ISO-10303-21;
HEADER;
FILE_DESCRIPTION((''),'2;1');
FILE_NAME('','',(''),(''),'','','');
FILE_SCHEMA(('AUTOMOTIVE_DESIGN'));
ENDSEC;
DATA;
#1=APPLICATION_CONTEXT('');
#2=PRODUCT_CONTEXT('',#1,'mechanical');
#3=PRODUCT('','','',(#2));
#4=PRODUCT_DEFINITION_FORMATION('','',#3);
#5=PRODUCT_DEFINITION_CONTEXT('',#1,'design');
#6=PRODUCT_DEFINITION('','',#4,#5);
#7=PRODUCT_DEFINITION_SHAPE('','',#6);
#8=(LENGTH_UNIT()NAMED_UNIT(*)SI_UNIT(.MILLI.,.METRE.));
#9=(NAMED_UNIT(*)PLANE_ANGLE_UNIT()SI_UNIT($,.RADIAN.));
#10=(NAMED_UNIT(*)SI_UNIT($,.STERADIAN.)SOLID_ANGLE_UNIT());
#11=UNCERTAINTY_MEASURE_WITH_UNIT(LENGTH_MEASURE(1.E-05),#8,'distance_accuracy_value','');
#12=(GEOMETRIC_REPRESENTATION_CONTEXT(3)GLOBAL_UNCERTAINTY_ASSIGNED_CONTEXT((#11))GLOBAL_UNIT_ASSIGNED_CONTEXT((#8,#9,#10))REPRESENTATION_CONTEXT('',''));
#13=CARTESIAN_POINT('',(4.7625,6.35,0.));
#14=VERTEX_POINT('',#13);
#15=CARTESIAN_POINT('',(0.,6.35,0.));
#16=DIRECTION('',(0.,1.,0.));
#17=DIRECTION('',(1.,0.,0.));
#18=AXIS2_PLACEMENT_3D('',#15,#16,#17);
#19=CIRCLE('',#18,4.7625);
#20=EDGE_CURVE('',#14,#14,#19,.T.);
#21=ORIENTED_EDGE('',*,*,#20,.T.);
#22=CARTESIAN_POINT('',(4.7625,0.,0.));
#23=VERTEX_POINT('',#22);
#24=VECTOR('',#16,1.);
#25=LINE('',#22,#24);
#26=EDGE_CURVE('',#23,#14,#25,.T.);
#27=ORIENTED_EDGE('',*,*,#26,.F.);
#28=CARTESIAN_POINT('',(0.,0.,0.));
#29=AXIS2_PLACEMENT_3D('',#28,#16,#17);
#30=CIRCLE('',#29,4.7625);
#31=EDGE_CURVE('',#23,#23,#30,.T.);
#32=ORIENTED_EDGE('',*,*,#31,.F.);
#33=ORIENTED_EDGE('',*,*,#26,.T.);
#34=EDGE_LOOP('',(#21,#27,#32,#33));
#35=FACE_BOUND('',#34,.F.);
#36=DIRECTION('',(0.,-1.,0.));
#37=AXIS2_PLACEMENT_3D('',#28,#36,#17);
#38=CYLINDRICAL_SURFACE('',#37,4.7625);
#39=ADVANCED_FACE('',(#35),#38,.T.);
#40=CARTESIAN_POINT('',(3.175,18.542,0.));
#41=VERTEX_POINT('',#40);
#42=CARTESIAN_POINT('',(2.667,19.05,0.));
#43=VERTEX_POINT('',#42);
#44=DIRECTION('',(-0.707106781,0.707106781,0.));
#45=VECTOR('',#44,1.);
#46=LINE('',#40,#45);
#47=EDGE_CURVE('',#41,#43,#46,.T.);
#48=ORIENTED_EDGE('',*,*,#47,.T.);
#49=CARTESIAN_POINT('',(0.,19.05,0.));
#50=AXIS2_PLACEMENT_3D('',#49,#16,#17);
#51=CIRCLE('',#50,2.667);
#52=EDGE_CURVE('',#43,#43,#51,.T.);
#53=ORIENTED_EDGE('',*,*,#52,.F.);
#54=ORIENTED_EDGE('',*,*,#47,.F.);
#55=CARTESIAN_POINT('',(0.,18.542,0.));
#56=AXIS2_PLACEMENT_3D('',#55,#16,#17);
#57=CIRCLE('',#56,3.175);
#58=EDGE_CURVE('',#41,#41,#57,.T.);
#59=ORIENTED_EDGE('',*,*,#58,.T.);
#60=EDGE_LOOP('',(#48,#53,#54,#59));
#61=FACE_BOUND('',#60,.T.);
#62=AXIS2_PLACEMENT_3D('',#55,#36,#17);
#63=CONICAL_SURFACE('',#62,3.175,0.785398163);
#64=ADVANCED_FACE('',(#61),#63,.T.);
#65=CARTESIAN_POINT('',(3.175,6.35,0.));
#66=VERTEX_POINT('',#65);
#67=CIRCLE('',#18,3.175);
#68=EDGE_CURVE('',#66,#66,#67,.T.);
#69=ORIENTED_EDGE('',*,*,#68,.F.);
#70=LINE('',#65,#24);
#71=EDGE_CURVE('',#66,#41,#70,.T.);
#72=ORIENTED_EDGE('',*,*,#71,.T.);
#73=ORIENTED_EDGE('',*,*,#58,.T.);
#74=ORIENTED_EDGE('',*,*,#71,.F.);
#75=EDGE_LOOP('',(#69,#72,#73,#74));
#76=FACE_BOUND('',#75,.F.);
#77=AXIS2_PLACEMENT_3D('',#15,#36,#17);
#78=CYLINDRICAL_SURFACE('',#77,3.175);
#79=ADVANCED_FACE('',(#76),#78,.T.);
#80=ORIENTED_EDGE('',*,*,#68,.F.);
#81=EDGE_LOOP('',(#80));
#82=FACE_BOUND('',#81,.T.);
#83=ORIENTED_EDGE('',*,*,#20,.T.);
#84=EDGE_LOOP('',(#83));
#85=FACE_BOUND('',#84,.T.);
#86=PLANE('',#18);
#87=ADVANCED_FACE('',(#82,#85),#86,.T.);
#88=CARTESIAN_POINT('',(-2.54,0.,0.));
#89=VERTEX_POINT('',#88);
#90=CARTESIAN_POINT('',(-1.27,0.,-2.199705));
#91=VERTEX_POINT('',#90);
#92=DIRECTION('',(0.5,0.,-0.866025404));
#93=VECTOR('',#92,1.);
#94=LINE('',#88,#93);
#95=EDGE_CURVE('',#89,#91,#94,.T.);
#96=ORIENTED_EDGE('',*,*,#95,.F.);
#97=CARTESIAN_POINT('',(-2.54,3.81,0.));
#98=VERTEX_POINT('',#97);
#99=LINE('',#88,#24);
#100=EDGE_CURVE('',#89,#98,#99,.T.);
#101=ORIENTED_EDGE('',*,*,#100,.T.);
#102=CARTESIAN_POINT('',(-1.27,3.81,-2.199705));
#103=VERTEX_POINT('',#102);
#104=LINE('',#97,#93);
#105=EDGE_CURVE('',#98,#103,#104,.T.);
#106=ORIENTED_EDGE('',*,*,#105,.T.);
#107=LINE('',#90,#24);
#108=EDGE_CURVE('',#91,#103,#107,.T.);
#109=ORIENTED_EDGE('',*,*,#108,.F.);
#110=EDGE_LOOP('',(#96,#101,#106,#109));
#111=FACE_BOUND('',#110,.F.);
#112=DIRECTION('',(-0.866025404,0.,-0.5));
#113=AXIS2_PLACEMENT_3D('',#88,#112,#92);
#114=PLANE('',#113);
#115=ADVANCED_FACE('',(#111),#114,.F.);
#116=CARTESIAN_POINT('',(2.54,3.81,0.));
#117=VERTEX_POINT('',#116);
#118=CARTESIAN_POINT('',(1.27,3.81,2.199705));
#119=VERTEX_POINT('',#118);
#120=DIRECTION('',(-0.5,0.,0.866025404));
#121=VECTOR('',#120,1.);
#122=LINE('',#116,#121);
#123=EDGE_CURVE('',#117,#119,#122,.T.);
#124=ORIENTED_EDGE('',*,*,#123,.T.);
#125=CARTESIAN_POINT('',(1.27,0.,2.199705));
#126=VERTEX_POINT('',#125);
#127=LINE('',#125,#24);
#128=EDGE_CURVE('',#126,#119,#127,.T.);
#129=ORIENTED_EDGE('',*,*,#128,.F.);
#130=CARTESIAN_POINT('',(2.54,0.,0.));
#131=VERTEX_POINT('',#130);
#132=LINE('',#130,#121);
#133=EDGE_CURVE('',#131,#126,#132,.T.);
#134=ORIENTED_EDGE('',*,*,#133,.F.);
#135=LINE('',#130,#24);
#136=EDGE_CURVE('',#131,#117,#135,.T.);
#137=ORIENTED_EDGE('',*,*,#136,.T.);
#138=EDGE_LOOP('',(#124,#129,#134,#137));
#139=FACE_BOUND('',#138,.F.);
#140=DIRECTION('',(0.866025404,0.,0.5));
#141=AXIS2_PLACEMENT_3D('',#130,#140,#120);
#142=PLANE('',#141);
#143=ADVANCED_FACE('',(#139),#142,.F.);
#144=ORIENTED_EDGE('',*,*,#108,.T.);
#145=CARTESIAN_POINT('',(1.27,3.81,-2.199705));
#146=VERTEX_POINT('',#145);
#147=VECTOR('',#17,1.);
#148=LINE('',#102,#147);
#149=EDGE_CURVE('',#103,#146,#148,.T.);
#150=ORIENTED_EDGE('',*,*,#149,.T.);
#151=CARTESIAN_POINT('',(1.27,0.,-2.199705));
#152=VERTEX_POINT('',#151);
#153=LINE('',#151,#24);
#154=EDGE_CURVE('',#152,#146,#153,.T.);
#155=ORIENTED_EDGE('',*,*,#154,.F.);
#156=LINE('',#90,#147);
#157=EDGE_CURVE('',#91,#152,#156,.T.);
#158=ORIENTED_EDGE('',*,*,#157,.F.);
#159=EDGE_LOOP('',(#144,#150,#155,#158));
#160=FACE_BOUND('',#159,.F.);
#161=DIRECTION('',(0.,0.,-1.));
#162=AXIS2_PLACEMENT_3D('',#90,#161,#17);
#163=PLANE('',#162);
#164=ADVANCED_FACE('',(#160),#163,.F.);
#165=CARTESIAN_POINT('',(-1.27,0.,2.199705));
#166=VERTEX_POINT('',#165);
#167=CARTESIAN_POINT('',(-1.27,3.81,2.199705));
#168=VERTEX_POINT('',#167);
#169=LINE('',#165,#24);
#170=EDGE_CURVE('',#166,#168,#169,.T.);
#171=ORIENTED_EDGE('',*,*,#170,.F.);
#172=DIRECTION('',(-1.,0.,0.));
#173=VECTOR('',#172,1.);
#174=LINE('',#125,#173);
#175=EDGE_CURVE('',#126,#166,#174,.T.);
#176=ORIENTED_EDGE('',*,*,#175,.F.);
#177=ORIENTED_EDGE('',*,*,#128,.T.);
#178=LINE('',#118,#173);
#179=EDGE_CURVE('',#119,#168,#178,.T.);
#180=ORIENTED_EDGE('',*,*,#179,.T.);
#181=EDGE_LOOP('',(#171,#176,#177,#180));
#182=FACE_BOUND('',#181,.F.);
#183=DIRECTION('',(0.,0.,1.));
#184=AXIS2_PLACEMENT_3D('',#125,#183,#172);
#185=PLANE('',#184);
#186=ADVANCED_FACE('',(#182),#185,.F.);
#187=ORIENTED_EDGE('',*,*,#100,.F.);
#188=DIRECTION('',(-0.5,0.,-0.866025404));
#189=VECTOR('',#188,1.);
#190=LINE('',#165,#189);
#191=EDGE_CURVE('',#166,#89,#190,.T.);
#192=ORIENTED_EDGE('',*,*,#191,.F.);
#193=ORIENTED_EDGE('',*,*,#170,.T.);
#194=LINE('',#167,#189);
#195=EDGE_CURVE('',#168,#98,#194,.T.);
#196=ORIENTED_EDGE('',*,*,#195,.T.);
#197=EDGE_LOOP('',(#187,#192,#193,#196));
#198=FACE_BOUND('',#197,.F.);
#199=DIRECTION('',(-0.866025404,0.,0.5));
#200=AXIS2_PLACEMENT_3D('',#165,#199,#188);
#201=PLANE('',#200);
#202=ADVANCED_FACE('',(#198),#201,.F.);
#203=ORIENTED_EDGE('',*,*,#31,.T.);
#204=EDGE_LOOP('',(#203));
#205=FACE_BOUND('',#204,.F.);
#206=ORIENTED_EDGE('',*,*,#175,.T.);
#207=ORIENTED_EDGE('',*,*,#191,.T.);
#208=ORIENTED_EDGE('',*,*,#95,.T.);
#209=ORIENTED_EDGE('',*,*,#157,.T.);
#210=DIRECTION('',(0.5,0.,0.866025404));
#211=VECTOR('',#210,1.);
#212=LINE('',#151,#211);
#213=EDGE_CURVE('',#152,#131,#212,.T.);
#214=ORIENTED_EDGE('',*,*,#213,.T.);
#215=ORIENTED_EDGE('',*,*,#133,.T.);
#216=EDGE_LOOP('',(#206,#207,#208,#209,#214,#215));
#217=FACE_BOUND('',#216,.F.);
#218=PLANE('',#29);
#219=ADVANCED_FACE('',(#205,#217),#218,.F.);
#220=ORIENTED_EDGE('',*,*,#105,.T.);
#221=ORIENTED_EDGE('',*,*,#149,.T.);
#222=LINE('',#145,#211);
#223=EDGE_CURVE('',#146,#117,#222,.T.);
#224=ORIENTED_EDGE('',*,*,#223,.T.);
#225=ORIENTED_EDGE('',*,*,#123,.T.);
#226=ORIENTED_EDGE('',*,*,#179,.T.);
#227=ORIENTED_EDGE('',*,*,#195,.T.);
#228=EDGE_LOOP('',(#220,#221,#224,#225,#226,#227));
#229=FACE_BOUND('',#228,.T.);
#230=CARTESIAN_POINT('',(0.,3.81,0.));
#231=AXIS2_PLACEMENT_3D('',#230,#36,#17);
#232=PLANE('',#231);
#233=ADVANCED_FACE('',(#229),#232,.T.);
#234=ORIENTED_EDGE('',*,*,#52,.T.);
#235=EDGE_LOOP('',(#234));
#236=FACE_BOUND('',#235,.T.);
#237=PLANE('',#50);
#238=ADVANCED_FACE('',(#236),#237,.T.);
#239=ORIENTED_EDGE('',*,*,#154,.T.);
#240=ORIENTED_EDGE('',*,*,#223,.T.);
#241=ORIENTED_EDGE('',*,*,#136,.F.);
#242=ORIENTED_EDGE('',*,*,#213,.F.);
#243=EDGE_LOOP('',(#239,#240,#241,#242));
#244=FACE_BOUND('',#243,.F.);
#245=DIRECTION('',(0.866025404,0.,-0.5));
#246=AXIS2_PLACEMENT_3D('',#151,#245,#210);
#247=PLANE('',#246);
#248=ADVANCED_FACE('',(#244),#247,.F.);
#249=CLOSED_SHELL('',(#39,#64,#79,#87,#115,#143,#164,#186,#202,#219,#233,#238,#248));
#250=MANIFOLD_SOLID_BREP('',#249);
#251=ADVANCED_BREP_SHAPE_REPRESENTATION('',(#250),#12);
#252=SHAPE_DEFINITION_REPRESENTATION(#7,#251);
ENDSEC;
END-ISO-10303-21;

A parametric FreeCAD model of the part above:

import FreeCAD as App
import Part
import Sketcher
Q = App.Units.Quantity


def edges_at(feature, points):
    """Names of the edges that pass closest to the given points."""
    edges = feature.Shape.Edges
    near = lambda p: min(range(len(edges)), key=lambda i: edges[i].distToShape(Part.Vertex(*p))[0])
    return sorted({f"Edge{near(p) + 1}" for p in points})


def add_polygon(sketch, points):
    """Adds a closed chain of lines whose ends are joined by coincident constraints."""
    first, n = sketch.GeometryCount, len(points)
    for a, b in zip(points, points[1:] + points[:1]):
        sketch.addGeometry(Part.LineSegment(App.Vector(*a, 0), App.Vector(*b, 0)), False)
    for i in range(n):
        sketch.addConstraint(Sketcher.Constraint("Coincident", first + i, 2, first + (i + 1) % n, 1))

doc = App.newDocument("Part")
body = doc.addObject("PartDesign::Body", "Body")

# Sketch on XZ plane
sketch1 = body.newObject("Sketcher::SketchObject", "Sketch")
sketch1.AttachmentSupport = (doc.getObject("XZ_Plane"), [""])
sketch1.MapMode = "FlatFace"
sketch1.addGeometry(Part.Circle(App.Vector(0, 0, 0), App.Vector(0, 0, 1), 4.8), False)
sketch1.addConstraint([
    Sketcher.Constraint("Coincident", 0, 3, -1, 1),
    Sketcher.Constraint("Diameter", 0, Q("0.375 in")),
])
pad1 = body.newObject("PartDesign::Pad", "Pad")
pad1.Profile = sketch1
pad1.Length = Q("0.25 in")
pad1.Reversed = True

# Sketch on XZ plane
sketch2 = body.newObject("Sketcher::SketchObject", "Sketch001")
sketch2.AttachmentSupport = (doc.getObject("XZ_Plane"), [""])
sketch2.MapMode = "FlatFace"
sketch2.AttachmentOffset = App.Placement(App.Vector(0, 0, -0.25 * 25.4), App.Rotation())
sketch2.addGeometry(Part.Circle(App.Vector(0, 0, 0), App.Vector(0, 0, 1), 3.2), False)
sketch2.addConstraint([
    Sketcher.Constraint("Coincident", 0, 3, -1, 1),
    Sketcher.Constraint("Diameter", 0, Q("0.25 in")),
])
pad2 = body.newObject("PartDesign::Pad", "Pad001")
pad2.Profile = sketch2
pad2.Length = Q("0.5 in")
pad2.Reversed = True
doc.recompute()

chamfer = body.newObject("PartDesign::Chamfer", "Chamfer")
chamfer.Base = (pad2, edges_at(pad2, [(-3.175, 19.05, 0)]))
chamfer.Size = Q("0.02 in")

# Sketch on XZ plane
sketch3 = body.newObject("Sketcher::SketchObject", "Sketch002")
sketch3.AttachmentSupport = (doc.getObject("XZ_Plane"), [""])
sketch3.MapMode = "FlatFace"
add_polygon(sketch3, [(1.3, 2.2), (-1.3, 2.2), (-2.5, 0), (-1.3, -2.2), (1.3, -2.2), (2.5, 0)])  # lines 0-5
sketch3.addConstraint([
    Sketcher.Constraint("Horizontal", 0),
    Sketcher.Constraint("Horizontal", 3),
    Sketcher.Constraint("Symmetric", 0, 2, 3, 2, -1, 1),
    Sketcher.Constraint("Symmetric", 1, 2, 4, 2, -1, 1),
    Sketcher.Constraint("PointOnObject", 1, 2, -1),
    Sketcher.Constraint("Parallel", 2, 5),
    Sketcher.Constraint("Vertical", 0, 2, 2, 2),
    Sketcher.Constraint("DistanceX", 0, 2, 0, 1, Q("0.1 in")),
    Sketcher.Constraint("Angle", 1, Q("-120 deg")),
    Sketcher.Constraint("Distance", 1, Q("0.1 in")),
])
pocket1 = body.newObject("PartDesign::Pocket", "Pocket")
pocket1.Profile = sketch3
pocket1.Length = Q("0.15 in")

doc.recompute()
